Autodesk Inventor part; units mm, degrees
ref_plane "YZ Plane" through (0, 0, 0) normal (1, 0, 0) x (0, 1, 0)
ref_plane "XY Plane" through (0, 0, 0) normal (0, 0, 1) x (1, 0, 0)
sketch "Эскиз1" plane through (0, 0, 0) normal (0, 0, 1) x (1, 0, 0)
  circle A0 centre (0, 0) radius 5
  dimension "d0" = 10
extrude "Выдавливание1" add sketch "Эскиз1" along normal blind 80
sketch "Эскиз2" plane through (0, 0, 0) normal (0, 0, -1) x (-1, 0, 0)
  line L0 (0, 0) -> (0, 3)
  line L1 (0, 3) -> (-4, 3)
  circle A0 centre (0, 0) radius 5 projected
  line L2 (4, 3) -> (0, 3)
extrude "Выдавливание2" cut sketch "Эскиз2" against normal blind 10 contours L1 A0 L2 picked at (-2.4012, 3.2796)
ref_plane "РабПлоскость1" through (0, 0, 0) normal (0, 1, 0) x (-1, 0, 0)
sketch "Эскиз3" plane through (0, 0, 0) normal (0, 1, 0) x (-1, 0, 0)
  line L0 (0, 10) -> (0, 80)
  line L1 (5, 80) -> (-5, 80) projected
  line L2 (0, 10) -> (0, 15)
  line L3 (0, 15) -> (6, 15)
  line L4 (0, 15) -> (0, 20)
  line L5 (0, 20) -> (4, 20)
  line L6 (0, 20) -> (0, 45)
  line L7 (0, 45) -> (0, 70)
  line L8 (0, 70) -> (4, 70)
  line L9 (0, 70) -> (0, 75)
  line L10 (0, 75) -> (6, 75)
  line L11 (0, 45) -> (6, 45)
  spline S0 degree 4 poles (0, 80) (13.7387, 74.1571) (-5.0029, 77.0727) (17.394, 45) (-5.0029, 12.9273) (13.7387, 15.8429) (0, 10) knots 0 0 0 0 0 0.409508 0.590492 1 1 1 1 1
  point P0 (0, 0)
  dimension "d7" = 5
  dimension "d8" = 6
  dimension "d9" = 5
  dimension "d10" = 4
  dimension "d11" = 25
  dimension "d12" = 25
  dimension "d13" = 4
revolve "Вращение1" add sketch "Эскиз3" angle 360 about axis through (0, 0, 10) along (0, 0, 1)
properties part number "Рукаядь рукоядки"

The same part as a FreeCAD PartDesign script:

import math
import FreeCAD as App
import Part
import Sketcher

V = App.Vector
Q = App.Units.Quantity

doc = App.newDocument("Part")
params = doc.addObject("Spreadsheet::Sheet", "Params")
for row, (alias, value) in enumerate([
    ("sketch1_diameter", "10 mm"),
    ("pad1_length", "80 mm"),
    ("sketch2_radius", "5 mm"),
    ("sketch2_width", "8 mm"),
    ("pocket1_length", "10 mm"),
    ("revolution_angle", "360 deg"),
], start=1):
    params.set(f"A{row}", alias)
    params.set(f"B{row}", "=" + value)
    params.setAlias(f"B{row}", alias)

body = doc.addObject("PartDesign::Body", "Body")

sketch1 = doc.addObject("Sketcher::SketchObject", "Sketch")
body.addObject(sketch1)
sketch1.AttachmentSupport = (doc.XY_Plane, [""])
sketch1.MapMode = "FlatFace"
sketch1.addGeometry(Part.Circle(V(0, 0, 0), V(0, 0, 1), 5), False)
sketch1.addConstraint([
    Sketcher.Constraint("Coincident", 0, 3, -1, 1),
    Sketcher.Constraint("Diameter", 0, Q("10 mm")),
])
sketch1.setExpression("Constraints[1]", "Params.sketch1_diameter")
pad1 = doc.addObject("PartDesign::Pad", "Pad")
body.addObject(pad1)
pad1.Profile = sketch1
pad1.setExpression("Length", "Params.pad1_length")

sketch2 = doc.addObject("Sketcher::SketchObject", "Sketch001")
body.addObject(sketch2)
sketch2.AttachmentSupport = (doc.XY_Plane, [""])
sketch2.MapMode = "FlatFace"
sketch2.addGeometry([
    Part.LineSegment(V(4, 3, 0), V(-4, 3, 0)),
    Part.ArcOfCircle(Part.Circle(V(0, 0, 0), V(0, 0, 1), 5), math.radians(37), math.radians(143)),
], False)
sketch2.addConstraint([
    Sketcher.Constraint("Coincident", 0, 1, 1, 1),
    Sketcher.Constraint("Coincident", 1, 2, 0, 2),
    Sketcher.Constraint("Horizontal", 0),
    Sketcher.Constraint("Coincident", 1, 3, -1, 1),
    Sketcher.Constraint("Radius", 1, Q("5 mm")),
    Sketcher.Constraint("DistanceX", 0, 2, 0, 1, Q("8 mm")),
])
sketch2.setExpression("Constraints[4]", "Params.sketch2_radius")
sketch2.setExpression("Constraints[5]", "Params.sketch2_width")
pocket1 = doc.addObject("PartDesign::Pocket", "Pocket")
body.addObject(pocket1)
pocket1.Profile = sketch2
pocket1.setExpression("Length", "Params.pocket1_length")
pocket1.Reversed = True

sketch3 = doc.addObject("Sketcher::SketchObject", "Sketch002")
body.addObject(sketch3)
sketch3.AttachmentSupport = (doc.XZ_Plane, [""])
sketch3.MapMode = "FlatFace"
sketch3.addGeometry([
    Part.BSplineCurve([V(-5.999992, 14.999997, 0), V(-6.392449, 13.93139, 0), V(-6.224158, 13.045355, 0), V(-4.630903, 11.969466, 0), V(0, 10, 0)], [5, 5], [0.861967153, 1], False, 4, [1, 1, 1, 1, 1], False),
    Part.BSplineCurve([V(-4, 20, 0), V(-4.357238, 18.252852, 0), V(-4.961597, 16.900535, 0), V(-5.674111, 15.887324, 0), V(-5.999992, 14.999997, 0)], [5, 5], [0.747350303, 0.861967153], False, 4, [1, 1, 1, 1, 1], False),
    Part.BSplineCurve([V(-6.000005, 45, 0), V(-6.000005, 42.176332, 0), V(-5.465505, 34.458134, 0), V(-3.470004, 27.327601, 0), V(-3.511102, 22.391051, 0), V(-4, 20, 0)], [5, 1, 5], [0.5, 0.590492, 0.747350303], False, 4, [1, 1, 1, 1, 1, 1], False),
    Part.BSplineCurve([V(-4, 70, 0), V(-3.511102, 67.608949, 0), V(-3.470004, 62.672399, 0), V(-5.465505, 55.541866, 0), V(-6.000005, 47.823668, 0), V(-6.000005, 45, 0)], [5, 1, 5], [0.252649697, 0.409508, 0.5], False, 4, [1, 1, 1, 1, 1, 1], False),
    Part.BSplineCurve([V(-5.999992, 75.000003, 0), V(-5.674111, 74.112676, 0), V(-4.961597, 73.099465, 0), V(-4.357238, 71.747148, 0), V(-4, 70, 0)], [5, 5], [0.138032847, 0.252649697], False, 4, [1, 1, 1, 1, 1], False),
    Part.BSplineCurve([V(0, 80, 0), V(-4.630903, 78.030534, 0), V(-6.224158, 76.954645, 0), V(-6.392449, 76.06861, 0), V(-5.999992, 75.000003, 0)], [5, 5], [0, 0.138032847], False, 4, [1, 1, 1, 1, 1], False),
    Part.LineSegment(V(0, 80, 0), V(0, 10, 0)),
], False)
sketch3.addConstraint([
    Sketcher.Constraint("Block", 0),
    Sketcher.Constraint("Block", 1),
    Sketcher.Constraint("Block", 2),
    Sketcher.Constraint("Block", 3),
    Sketcher.Constraint("Block", 4),
    Sketcher.Constraint("Block", 5),
    Sketcher.Constraint("Coincident", 5, 1, 6, 1),
    Sketcher.Constraint("Coincident", 6, 2, 0, 2),
])
revolution = doc.addObject("PartDesign::Revolution", "Revolution")
body.addObject(revolution)
revolution.Profile = sketch3
revolution.ReferenceAxis = (sketch3, ["V_Axis"])
revolution.setExpression("Angle", "Params.revolution_angle")

doc.recompute()
